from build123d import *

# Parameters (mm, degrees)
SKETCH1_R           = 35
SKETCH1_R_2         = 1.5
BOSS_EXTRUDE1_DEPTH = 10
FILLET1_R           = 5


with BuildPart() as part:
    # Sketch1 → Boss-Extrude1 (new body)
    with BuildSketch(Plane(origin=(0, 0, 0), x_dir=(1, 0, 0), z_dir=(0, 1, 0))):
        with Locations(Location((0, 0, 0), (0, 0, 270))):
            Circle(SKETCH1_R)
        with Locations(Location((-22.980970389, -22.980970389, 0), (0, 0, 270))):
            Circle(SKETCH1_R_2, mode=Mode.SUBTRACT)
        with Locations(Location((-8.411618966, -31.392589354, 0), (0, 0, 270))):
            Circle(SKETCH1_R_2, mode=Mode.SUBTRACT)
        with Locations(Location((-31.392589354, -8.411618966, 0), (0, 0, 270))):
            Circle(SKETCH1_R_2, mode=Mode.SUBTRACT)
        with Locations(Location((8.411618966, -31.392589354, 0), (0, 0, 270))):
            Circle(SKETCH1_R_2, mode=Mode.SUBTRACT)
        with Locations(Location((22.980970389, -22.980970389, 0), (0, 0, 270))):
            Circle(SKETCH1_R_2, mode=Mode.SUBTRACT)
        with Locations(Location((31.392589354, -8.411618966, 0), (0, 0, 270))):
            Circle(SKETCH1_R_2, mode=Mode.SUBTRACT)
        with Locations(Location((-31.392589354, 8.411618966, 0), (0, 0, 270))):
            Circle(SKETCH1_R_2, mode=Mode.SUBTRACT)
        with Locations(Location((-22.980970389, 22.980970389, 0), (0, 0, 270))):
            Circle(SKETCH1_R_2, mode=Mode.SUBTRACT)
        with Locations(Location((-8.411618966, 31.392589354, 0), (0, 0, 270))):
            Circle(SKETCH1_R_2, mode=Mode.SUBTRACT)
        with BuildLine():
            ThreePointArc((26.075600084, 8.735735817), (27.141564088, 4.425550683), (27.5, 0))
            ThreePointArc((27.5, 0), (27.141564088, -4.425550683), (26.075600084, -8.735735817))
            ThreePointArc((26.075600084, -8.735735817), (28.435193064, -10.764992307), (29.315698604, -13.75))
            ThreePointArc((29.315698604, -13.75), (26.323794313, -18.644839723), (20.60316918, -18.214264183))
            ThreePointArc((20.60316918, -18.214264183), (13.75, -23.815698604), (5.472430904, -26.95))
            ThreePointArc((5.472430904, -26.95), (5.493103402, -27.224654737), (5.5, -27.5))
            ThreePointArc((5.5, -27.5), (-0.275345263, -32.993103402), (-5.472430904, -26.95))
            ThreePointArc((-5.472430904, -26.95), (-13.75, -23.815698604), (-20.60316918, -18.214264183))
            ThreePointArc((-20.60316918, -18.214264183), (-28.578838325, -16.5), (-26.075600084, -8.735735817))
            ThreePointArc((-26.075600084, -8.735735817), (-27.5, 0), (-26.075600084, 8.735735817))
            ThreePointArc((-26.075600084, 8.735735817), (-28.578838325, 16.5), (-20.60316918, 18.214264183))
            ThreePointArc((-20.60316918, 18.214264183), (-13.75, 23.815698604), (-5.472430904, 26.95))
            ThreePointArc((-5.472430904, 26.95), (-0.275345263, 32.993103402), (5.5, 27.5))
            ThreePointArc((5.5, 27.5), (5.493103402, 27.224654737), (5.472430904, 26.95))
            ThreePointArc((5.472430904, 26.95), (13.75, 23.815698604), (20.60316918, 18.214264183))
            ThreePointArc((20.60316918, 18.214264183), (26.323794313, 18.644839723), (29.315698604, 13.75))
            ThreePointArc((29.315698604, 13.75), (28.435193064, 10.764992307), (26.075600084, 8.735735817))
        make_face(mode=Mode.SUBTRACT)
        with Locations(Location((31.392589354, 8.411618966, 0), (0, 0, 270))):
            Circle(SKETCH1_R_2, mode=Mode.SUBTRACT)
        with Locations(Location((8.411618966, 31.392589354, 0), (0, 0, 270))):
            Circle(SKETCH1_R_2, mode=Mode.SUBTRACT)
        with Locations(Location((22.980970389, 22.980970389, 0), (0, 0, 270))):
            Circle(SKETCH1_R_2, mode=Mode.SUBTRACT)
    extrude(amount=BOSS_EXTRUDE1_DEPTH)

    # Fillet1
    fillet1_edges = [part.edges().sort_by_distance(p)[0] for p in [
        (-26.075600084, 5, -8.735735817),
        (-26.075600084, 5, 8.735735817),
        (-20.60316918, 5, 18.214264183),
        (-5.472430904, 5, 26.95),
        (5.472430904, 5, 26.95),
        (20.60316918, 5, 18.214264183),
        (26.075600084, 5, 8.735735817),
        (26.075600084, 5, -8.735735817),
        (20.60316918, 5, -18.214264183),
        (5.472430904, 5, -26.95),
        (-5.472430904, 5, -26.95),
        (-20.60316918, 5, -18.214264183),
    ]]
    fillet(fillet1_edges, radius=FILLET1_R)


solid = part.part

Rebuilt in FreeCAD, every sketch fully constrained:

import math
import FreeCAD as App
import Part
import Sketcher
Q = App.Units.Quantity


def edges_at(feature, points):
    """Names of the edges that pass closest to the given points."""
    edges = feature.Shape.Edges
    near = lambda p: min(range(len(edges)), key=lambda i: edges[i].distToShape(Part.Vertex(*p))[0])
    return sorted({f"Edge{near(p) + 1}" for p in points})

doc = App.newDocument("Part")
body = doc.addObject("PartDesign::Body", "Body")

# Sketch on XZ plane
sketch1 = doc.addObject("Sketcher::SketchObject", "Sketch")
body.addObject(sketch1)
sketch1.AttachmentSupport = (doc.XZ_Plane, [""])
sketch1.MapMode = "FlatFace"
sketch1.addGeometry(Part.Circle(App.Vector(0, 0, 0), App.Vector(0, 0, 1), 35), False)
sketch1.addGeometry(Part.Circle(App.Vector(-23, -23, 0), App.Vector(0, 0, 1), 1.5), False)
sketch1.addGeometry(Part.Circle(App.Vector(-31.4, -8.4, 0), App.Vector(0, 0, 1), 1.5), False)
sketch1.addGeometry(Part.Circle(App.Vector(-8.4, -31.4, 0), App.Vector(0, 0, 1), 1.5), False)
sketch1.addGeometry(Part.Circle(App.Vector(-31.4, 8.4, 0), App.Vector(0, 0, 1), 1.5), False)
sketch1.addGeometry(Part.Circle(App.Vector(-23, 23, 0), App.Vector(0, 0, 1), 1.5), False)
sketch1.addGeometry(Part.ArcOfCircle(Part.Circle(App.Vector(23.8, -13.8, 0), App.Vector(0, 0, 1), 5.5), math.radians(0), math.radians(66)), False)
sketch1.addGeometry(Part.ArcOfCircle(Part.Circle(App.Vector(0, 0, 0), App.Vector(0, 0, 1), 27.5), math.radians(-18.52), math.radians(0)), False)
sketch1.addGeometry(Part.ArcOfCircle(Part.Circle(App.Vector(0, 0, 0), App.Vector(0, 0, 1), 27.5), math.radians(0), math.radians(18.52)), False)
sketch1.addGeometry(Part.ArcOfCircle(Part.Circle(App.Vector(23.8, 13.8, 0), App.Vector(0, 0, 1), 5.5), math.radians(-66), math.radians(0)), False)
sketch1.addGeometry(Part.ArcOfCircle(Part.Circle(App.Vector(23.8, 13.8, 0), App.Vector(0, 0, 1), 5.5), math.radians(0), math.radians(126)), False)
sketch1.addGeometry(Part.ArcOfCircle(Part.Circle(App.Vector(0, 0, 0), App.Vector(0, 0, 1), 27.5), math.radians(41), math.radians(79)), False)
sketch1.addGeometry(Part.ArcOfCircle(Part.Circle(App.Vector(0, 27.5, 0), App.Vector(0, 0, 1), 5.5), math.radians(-5.74), math.radians(0)), False)
sketch1.addGeometry(Part.ArcOfCircle(Part.Circle(App.Vector(0, 27.5, 0), App.Vector(0, 0, 1), 5.5), math.radians(0), math.radians(186)), False)
sketch1.addGeometry(Part.ArcOfCircle(Part.Circle(App.Vector(0, 0, 0), App.Vector(0, 0, 1), 27.5), math.radians(101), math.radians(139)), False)
sketch1.addGeometry(Part.ArcOfCircle(Part.Circle(App.Vector(-23.8, 13.8, 0), App.Vector(0, 0, 1), 5.5), math.radians(54), math.radians(246)), False)
sketch1.addGeometry(Part.ArcOfCircle(Part.Circle(App.Vector(0, 0, 0), App.Vector(0, 0, 1), 27.5), math.radians(161), math.radians(199)), False)
sketch1.addGeometry(Part.ArcOfCircle(Part.Circle(App.Vector(-23.8, -13.8, 0), App.Vector(0, 0, 1), 5.5), math.radians(114), math.radians(306)), False)
sketch1.addGeometry(Part.ArcOfCircle(Part.Circle(App.Vector(0, 0, 0), App.Vector(0, 0, 1), 27.5), math.radians(-139), math.radians(-101)), False)
sketch1.addGeometry(Part.ArcOfCircle(Part.Circle(App.Vector(0, -27.5, 0), App.Vector(0, 0, 1), 5.5), math.radians(174), math.radians(360)), False)
sketch1.addGeometry(Part.ArcOfCircle(Part.Circle(App.Vector(0, -27.5, 0), App.Vector(0, 0, 1), 5.5), math.radians(0), math.radians(5.74)), False)
sketch1.addGeometry(Part.ArcOfCircle(Part.Circle(App.Vector(0, 0, 0), App.Vector(0, 0, 1), 27.5), math.radians(-79), math.radians(-41)), False)
sketch1.addGeometry(Part.ArcOfCircle(Part.Circle(App.Vector(23.8, -13.8, 0), App.Vector(0, 0, 1), 5.5), math.radians(-126), math.radians(0)), False)
sketch1.addGeometry(Part.Circle(App.Vector(-8.4, 31.4, 0), App.Vector(0, 0, 1), 1.5), False)
sketch1.addGeometry(Part.Circle(App.Vector(8.4, -31.4, 0), App.Vector(0, 0, 1), 1.5), False)
sketch1.addGeometry(Part.Circle(App.Vector(23, -23, 0), App.Vector(0, 0, 1), 1.5), False)
sketch1.addGeometry(Part.Circle(App.Vector(31.4, -8.4, 0), App.Vector(0, 0, 1), 1.5), False)
sketch1.addGeometry(Part.Circle(App.Vector(8.4, 31.4, 0), App.Vector(0, 0, 1), 1.5), False)
sketch1.addGeometry(Part.Circle(App.Vector(31.4, 8.4, 0), App.Vector(0, 0, 1), 1.5), False)
sketch1.addGeometry(Part.Circle(App.Vector(23, 23, 0), App.Vector(0, 0, 1), 1.5), False)
sketch1.addConstraint(Sketcher.Constraint("Coincident", 6, 2, 7, 1))
sketch1.addConstraint(Sketcher.Constraint("Tangent", 7, 2, 8, 1))
sketch1.addConstraint(Sketcher.Constraint("Coincident", 8, 2, 9, 1))
sketch1.addConstraint(Sketcher.Constraint("Tangent", 9, 2, 10, 1))
sketch1.addConstraint(Sketcher.Constraint("Coincident", 10, 2, 11, 1))
sketch1.addConstraint(Sketcher.Constraint("Coincident", 11, 2, 12, 1))
sketch1.addConstraint(Sketcher.Constraint("Tangent", 12, 2, 13, 1))
sketch1.addConstraint(Sketcher.Constraint("Coincident", 13, 2, 14, 1))
sketch1.addConstraint(Sketcher.Constraint("Coincident", 14, 2, 15, 1))
sketch1.addConstraint(Sketcher.Constraint("Coincident", 15, 2, 16, 1))
sketch1.addConstraint(Sketcher.Constraint("Coincident", 16, 2, 17, 1))
sketch1.addConstraint(Sketcher.Constraint("Coincident", 17, 2, 18, 1))
sketch1.addConstraint(Sketcher.Constraint("Coincident", 18, 2, 19, 1))
sketch1.addConstraint(Sketcher.Constraint("Tangent", 19, 2, 20, 1))
sketch1.addConstraint(Sketcher.Constraint("Coincident", 20, 2, 21, 1))
sketch1.addConstraint(Sketcher.Constraint("Coincident", 21, 2, 22, 1))
sketch1.addConstraint(Sketcher.Constraint("Tangent", 22, 2, 6, 1))
sketch1.addConstraint(Sketcher.Constraint("Coincident", 0, 3, -1, 1))
sketch1.addConstraint(Sketcher.Constraint("Coincident", 7, 3, -1, 1))
sketch1.addConstraint(Sketcher.Constraint("Coincident", 11, 3, -1, 1))
sketch1.addConstraint(Sketcher.Constraint("Coincident", 14, 3, -1, 1))
sketch1.addConstraint(Sketcher.Constraint("Coincident", 16, 3, -1, 1))
sketch1.addConstraint(Sketcher.Constraint("Coincident", 18, 3, -1, 1))
sketch1.addConstraint(Sketcher.Constraint("Coincident", 21, 3, -1, 1))
sketch1.addConstraint(Sketcher.Constraint("Equal", 1, 2))
sketch1.addConstraint(Sketcher.Constraint("Equal", 2, 3))
sketch1.addConstraint(Sketcher.Constraint("Equal", 3, 4))
sketch1.addConstraint(Sketcher.Constraint("Equal", 4, 5))
sketch1.addConstraint(Sketcher.Constraint("Equal", 7, 8))
sketch1.addConstraint(Sketcher.Constraint("Equal", 6, 9))
sketch1.addConstraint(Sketcher.Constraint("Equal", 9, 10))
sketch1.addConstraint(Sketcher.Constraint("Equal", 8, 11))
sketch1.addConstraint(Sketcher.Constraint("Equal", 10, 12))
sketch1.addConstraint(Sketcher.Constraint("Equal", 12, 13))
sketch1.addConstraint(Sketcher.Constraint("Equal", 11, 14))
sketch1.addConstraint(Sketcher.Constraint("Equal", 13, 15))
sketch1.addConstraint(Sketcher.Constraint("Equal", 14, 16))
sketch1.addConstraint(Sketcher.Constraint("Equal", 15, 17))
sketch1.addConstraint(Sketcher.Constraint("Equal", 16, 18))
sketch1.addConstraint(Sketcher.Constraint("Equal", 17, 19))
sketch1.addConstraint(Sketcher.Constraint("Equal", 19, 20))
sketch1.addConstraint(Sketcher.Constraint("Equal", 18, 21))
sketch1.addConstraint(Sketcher.Constraint("Equal", 20, 22))
sketch1.addConstraint(Sketcher.Constraint("Equal", 5, 23))
sketch1.addConstraint(Sketcher.Constraint("Equal", 23, 24))
sketch1.addConstraint(Sketcher.Constraint("Equal", 24, 25))
sketch1.addConstraint(Sketcher.Constraint("Equal", 25, 26))
sketch1.addConstraint(Sketcher.Constraint("Equal", 26, 27))
sketch1.addConstraint(Sketcher.Constraint("Equal", 27, 28))
sketch1.addConstraint(Sketcher.Constraint("Equal", 28, 29))
sketch1.addConstraint(Sketcher.Constraint("Symmetric", 6, 3, 15, 3, -1, 1))
sketch1.addConstraint(Sketcher.Constraint("Symmetric", 9, 3, 17, 3, -1, 1))
sketch1.addConstraint(Sketcher.Constraint("Symmetric", 12, 3, 19, 3, -1, 1))
sketch1.addConstraint(Sketcher.Constraint("Symmetric", 23, 3, 24, 3, -1, 1))
sketch1.addConstraint(Sketcher.Constraint("Symmetric", 5, 3, 25, 3, -1, 1))
sketch1.addConstraint(Sketcher.Constraint("Symmetric", 4, 3, 26, 3, -1, 1))
sketch1.addConstraint(Sketcher.Constraint("Symmetric", 3, 3, 27, 3, -1, 1))
sketch1.addConstraint(Sketcher.Constraint("Symmetric", 2, 3, 28, 3, -1, 1))
sketch1.addConstraint(Sketcher.Constraint("Symmetric", 1, 3, 29, 3, -1, 1))
sketch1.addConstraint(Sketcher.Constraint("Symmetric", 9, 3, 15, 3, -2))
sketch1.addConstraint(Sketcher.Constraint("Symmetric", 3, 3, 24, 3, -2))
sketch1.addConstraint(Sketcher.Constraint("Symmetric", 1, 3, 25, 3, -2))
sketch1.addConstraint(Sketcher.Constraint("Symmetric", 2, 3, 26, 3, -2))
sketch1.addConstraint(Sketcher.Constraint("Symmetric", 12, 2, 19, 2, -1))
sketch1.addConstraint(Sketcher.Constraint("PointOnObject", 7, 2, -1))
sketch1.addConstraint(Sketcher.Constraint("Horizontal", 15, 3, 9, 2))
sketch1.addConstraint(Sketcher.Constraint("Horizontal", 13, 3, 12, 2))
sketch1.addConstraint(Sketcher.Constraint("Horizontal", 17, 3, 22, 2))
sketch1.addConstraint(Sketcher.Constraint("Diameter", 0, Q("70 mm")))
sketch1.addConstraint(Sketcher.Constraint("Diameter", 1, Q("3 mm")))
sketch1.addConstraint(Sketcher.Constraint("Radius", 6, Q("5.5 mm")))
sketch1.addConstraint(Sketcher.Constraint("Radius", 7, Q("27.5 mm")))
sketch1.addConstraint(Sketcher.Constraint("DistanceY", -1, 1, 12, 3, Q("27.5 mm")))
sketch1.addConstraint(Sketcher.Constraint("DistanceY", 6, 3, 9, 3, Q("27.5 mm")))
sketch1.addConstraint(Sketcher.Constraint("DistanceX", -1, 1, 6, 3, Q("23.815699 mm")))
sketch1.addConstraint(Sketcher.Constraint("DistanceX", 10, 2, 29, 3, Q("2.377801 mm")))
sketch1.addConstraint(Sketcher.Constraint("DistanceY", 1, 3, -1, 1, Q("22.98097 mm")))
sketch1.addConstraint(Sketcher.Constraint("DistanceX", 2, 3, -1, 1, Q("31.392589 mm")))
sketch1.addConstraint(Sketcher.Constraint("DistanceY", 2, 3, -1, 1, Q("8.411619 mm")))
sketch1.addConstraint(Sketcher.Constraint("DistanceX", 3, 3, -1, 1, Q("8.411619 mm")))
sketch1.addConstraint(Sketcher.Constraint("DistanceY", 3, 3, -1, 1, Q("31.392589 mm")))
pad1 = doc.addObject("PartDesign::Pad", "Pad")
body.addObject(pad1)
pad1.Profile = sketch1
pad1.Length = 10
pad1.Reversed = True
doc.recompute()

fillet = doc.addObject("PartDesign::Fillet", "Fillet")
body.addObject(fillet)
fillet.Base = (pad1, edges_at(pad1, [
    (-26.076, 5, -8.736),
    (-26.076, 5, 8.736),
    (-20.603, 5, 18.214),
    (-5.472, 5, 26.95),
    (5.472, 5, 26.95),
    (20.603, 5, 18.214),
    (26.076, 5, 8.736),
    (26.076, 5, -8.736),
    (20.603, 5, -18.214),
    (5.472, 5, -26.95),
    (-5.472, 5, -26.95),
    (-20.603, 5, -18.214),
]))
fillet.Radius = 5

doc.recompute()
